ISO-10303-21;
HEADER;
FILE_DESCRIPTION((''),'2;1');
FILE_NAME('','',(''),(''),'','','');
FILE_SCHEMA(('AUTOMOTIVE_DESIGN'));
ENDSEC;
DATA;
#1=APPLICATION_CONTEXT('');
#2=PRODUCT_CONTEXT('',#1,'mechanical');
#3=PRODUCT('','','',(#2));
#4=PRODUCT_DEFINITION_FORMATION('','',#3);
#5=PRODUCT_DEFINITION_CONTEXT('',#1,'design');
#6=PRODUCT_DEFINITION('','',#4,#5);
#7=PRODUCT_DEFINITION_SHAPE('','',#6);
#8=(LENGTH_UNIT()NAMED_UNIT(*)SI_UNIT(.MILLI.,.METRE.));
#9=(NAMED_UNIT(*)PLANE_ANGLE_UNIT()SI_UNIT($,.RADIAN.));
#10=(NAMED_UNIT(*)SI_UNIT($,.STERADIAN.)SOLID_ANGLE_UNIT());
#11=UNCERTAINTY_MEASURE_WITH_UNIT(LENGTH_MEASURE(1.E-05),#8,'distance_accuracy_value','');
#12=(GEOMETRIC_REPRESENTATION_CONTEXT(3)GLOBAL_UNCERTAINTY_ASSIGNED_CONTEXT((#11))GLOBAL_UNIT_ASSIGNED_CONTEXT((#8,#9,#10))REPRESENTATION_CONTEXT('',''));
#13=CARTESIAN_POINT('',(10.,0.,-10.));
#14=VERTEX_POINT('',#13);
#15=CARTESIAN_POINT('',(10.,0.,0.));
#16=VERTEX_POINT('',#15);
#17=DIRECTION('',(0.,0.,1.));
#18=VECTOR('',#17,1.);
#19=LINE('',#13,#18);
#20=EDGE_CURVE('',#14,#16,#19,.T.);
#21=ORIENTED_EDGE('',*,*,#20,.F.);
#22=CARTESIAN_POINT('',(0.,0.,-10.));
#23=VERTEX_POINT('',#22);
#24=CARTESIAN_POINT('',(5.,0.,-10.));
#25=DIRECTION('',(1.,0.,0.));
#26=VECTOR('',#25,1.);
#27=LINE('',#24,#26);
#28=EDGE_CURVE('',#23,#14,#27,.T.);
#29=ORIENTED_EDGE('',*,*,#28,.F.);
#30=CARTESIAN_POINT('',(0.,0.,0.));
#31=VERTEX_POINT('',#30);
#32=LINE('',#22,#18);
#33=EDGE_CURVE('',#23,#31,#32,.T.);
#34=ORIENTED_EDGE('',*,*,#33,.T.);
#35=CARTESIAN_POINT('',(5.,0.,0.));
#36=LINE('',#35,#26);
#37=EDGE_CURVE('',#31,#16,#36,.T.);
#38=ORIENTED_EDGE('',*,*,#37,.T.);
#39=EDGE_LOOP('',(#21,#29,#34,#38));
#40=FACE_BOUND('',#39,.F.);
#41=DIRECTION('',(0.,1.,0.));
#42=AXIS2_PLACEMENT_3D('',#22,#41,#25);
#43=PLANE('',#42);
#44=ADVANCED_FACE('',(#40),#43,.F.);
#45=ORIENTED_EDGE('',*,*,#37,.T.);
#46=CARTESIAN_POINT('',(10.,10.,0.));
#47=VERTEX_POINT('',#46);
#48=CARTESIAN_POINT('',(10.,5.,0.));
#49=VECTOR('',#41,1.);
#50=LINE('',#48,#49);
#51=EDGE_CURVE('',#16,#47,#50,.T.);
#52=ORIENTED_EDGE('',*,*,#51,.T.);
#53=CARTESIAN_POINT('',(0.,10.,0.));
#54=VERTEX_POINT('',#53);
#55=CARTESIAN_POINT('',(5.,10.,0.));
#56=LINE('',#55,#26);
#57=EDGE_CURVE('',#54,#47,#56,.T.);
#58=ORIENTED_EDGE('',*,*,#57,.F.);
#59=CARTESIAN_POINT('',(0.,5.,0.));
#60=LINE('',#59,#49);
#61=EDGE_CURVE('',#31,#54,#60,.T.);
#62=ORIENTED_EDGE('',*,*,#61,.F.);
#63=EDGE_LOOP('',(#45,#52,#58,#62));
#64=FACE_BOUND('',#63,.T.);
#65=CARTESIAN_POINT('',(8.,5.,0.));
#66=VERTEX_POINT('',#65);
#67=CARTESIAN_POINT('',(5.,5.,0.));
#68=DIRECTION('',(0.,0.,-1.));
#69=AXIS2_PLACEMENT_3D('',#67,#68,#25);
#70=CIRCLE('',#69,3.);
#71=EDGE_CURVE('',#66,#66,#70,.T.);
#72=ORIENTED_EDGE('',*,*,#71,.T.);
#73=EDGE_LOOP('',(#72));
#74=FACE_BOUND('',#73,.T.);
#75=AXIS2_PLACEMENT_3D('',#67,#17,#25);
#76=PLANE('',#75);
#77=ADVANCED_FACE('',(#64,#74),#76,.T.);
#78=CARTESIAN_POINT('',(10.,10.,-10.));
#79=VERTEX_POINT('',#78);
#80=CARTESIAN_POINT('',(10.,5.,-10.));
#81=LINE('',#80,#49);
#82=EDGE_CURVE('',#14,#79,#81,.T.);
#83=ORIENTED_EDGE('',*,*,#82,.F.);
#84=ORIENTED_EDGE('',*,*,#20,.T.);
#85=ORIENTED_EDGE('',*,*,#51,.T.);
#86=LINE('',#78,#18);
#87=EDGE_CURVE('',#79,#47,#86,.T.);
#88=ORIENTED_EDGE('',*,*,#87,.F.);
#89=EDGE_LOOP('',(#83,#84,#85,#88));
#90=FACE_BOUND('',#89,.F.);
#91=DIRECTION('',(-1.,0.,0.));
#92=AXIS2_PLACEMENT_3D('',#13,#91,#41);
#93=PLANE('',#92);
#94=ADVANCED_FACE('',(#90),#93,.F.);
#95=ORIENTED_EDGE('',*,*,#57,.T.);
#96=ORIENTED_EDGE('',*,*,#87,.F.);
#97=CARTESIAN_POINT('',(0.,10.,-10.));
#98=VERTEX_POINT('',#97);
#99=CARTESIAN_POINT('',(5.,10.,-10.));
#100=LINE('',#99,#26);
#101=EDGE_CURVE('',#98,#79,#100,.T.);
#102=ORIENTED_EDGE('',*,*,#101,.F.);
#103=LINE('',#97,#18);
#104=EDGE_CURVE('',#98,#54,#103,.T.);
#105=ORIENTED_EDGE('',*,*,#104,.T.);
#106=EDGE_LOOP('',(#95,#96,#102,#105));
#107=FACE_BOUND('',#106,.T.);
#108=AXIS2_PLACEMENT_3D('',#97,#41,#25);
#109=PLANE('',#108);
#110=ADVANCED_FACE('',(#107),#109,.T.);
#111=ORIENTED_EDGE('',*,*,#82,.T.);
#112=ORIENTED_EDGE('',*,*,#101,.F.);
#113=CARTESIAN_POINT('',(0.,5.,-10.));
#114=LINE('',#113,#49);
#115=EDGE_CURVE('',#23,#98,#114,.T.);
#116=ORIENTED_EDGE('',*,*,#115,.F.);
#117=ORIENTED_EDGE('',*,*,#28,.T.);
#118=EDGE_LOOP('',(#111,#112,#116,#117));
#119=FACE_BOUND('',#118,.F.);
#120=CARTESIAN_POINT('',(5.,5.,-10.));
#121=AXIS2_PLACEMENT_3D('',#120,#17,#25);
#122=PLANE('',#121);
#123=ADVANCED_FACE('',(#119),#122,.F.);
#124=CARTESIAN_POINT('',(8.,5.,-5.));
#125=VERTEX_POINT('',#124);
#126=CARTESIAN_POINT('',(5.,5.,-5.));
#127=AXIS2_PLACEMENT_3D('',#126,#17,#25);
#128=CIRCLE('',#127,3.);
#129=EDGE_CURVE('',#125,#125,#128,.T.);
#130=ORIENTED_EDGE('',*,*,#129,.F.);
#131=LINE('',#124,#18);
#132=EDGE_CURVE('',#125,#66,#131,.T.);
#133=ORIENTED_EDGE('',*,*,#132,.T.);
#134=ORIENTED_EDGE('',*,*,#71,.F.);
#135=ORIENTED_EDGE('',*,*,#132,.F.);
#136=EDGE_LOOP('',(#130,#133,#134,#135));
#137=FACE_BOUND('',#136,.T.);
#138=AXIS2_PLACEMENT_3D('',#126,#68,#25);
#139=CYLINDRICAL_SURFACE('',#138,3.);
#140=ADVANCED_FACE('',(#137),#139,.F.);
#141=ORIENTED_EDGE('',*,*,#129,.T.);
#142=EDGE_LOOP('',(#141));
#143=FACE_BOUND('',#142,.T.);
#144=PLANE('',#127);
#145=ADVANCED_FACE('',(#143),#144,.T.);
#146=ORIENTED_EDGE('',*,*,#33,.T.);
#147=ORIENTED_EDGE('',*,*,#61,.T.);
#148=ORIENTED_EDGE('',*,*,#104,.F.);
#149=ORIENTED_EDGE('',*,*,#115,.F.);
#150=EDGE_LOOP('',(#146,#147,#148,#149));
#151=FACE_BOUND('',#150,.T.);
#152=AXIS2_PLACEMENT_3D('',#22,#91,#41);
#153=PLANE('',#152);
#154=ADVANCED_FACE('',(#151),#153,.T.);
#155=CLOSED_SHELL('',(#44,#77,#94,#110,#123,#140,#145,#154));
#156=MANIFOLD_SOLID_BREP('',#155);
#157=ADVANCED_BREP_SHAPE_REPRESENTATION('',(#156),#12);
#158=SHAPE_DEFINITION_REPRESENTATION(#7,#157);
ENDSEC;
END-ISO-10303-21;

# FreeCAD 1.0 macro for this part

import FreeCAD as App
import Part
import Sketcher
from FreeCAD import Vector

doc = App.newDocument("Part")
body = doc.addObject("PartDesign::Body", "Body")

# Sketch on XY plane
sketch1 = doc.addObject("Sketcher::SketchObject", "Sketch")
body.addObject(sketch1)
sketch1.AttachmentSupport = (doc.XY_Plane, [""])
sketch1.MapMode = "FlatFace"
sketch1.AttachmentOffset = App.Placement(Vector(0, 0, 5), App.Rotation())
sketch1.addGeometry(Part.Circle(Vector(5, 5, 0), Vector(0, 0, 1), 3), False)
sketch1.addConstraint([
    Sketcher.Constraint("Diameter", 0, 6.0),
    Sketcher.Constraint("DistanceX", -1, 1, 0, 3, 5.0),
    Sketcher.Constraint("DistanceY", -1, 1, 0, 3, 5.0),
])
pad1 = doc.addObject("PartDesign::Pad", "Pad")
body.addObject(pad1)
pad1.Profile = sketch1
pad1.Length = 10
body2 = doc.addObject("PartDesign::Body", "Body001")

# Sketch on XY plane
sketch2 = doc.addObject("Sketcher::SketchObject", "Sketch001")
body2.addObject(sketch2)
sketch2.AttachmentSupport = (doc.getObject("XY_Plane001"), [""])
sketch2.MapMode = "FlatFace"
sketch2.addGeometry([
    Part.LineSegment(Vector(0, 10, 0), Vector(0, 0, 0)),
    Part.LineSegment(Vector(0, 0, 0), Vector(10, 0, 0)),
    Part.LineSegment(Vector(10, 0, 0), Vector(10, 10, 0)),
    Part.LineSegment(Vector(10, 10, 0), Vector(0, 10, 0)),
], False)
sketch2.addConstraint([
    Sketcher.Constraint("Coincident", 0, 2, 1, 1),
    Sketcher.Constraint("Coincident", 1, 2, 2, 1),
    Sketcher.Constraint("Coincident", 2, 2, 3, 1),
    Sketcher.Constraint("Coincident", 3, 2, 0, 1),
    Sketcher.Constraint("Vertical", 0),
    Sketcher.Constraint("Horizontal", 1),
    Sketcher.Constraint("Vertical", 2),
    Sketcher.Constraint("Horizontal", 3),
    Sketcher.Constraint("Coincident", 0, 2, -1, 1),
    Sketcher.Constraint("Equal", 3, 0),
    Sketcher.Constraint("DistanceX", 1, 1, 1, 2, 10.0),
])
pad2 = doc.addObject("PartDesign::Pad", "Pad001")
body2.addObject(pad2)
pad2.Profile = sketch2
pad2.Length = 10
doc.recompute()

boolean = doc.addObject("PartDesign::Boolean", "Boolean")
body2.addObject(boolean)
boolean.Type = "Cut"
boolean.addObjects([body])
body3 = doc.addObject("PartDesign::Body", "Body002")
doc.recompute()

body2.Placement = App.Placement(Vector(0, 0, -10), App.Rotation(Vector(0, 0, 1), 0))
boolean2 = doc.addObject("PartDesign::Boolean", "Boolean001")
body3.addObject(boolean2)
boolean2.Type = "Fuse"
boolean2.addObjects([body2])

doc.recompute()
